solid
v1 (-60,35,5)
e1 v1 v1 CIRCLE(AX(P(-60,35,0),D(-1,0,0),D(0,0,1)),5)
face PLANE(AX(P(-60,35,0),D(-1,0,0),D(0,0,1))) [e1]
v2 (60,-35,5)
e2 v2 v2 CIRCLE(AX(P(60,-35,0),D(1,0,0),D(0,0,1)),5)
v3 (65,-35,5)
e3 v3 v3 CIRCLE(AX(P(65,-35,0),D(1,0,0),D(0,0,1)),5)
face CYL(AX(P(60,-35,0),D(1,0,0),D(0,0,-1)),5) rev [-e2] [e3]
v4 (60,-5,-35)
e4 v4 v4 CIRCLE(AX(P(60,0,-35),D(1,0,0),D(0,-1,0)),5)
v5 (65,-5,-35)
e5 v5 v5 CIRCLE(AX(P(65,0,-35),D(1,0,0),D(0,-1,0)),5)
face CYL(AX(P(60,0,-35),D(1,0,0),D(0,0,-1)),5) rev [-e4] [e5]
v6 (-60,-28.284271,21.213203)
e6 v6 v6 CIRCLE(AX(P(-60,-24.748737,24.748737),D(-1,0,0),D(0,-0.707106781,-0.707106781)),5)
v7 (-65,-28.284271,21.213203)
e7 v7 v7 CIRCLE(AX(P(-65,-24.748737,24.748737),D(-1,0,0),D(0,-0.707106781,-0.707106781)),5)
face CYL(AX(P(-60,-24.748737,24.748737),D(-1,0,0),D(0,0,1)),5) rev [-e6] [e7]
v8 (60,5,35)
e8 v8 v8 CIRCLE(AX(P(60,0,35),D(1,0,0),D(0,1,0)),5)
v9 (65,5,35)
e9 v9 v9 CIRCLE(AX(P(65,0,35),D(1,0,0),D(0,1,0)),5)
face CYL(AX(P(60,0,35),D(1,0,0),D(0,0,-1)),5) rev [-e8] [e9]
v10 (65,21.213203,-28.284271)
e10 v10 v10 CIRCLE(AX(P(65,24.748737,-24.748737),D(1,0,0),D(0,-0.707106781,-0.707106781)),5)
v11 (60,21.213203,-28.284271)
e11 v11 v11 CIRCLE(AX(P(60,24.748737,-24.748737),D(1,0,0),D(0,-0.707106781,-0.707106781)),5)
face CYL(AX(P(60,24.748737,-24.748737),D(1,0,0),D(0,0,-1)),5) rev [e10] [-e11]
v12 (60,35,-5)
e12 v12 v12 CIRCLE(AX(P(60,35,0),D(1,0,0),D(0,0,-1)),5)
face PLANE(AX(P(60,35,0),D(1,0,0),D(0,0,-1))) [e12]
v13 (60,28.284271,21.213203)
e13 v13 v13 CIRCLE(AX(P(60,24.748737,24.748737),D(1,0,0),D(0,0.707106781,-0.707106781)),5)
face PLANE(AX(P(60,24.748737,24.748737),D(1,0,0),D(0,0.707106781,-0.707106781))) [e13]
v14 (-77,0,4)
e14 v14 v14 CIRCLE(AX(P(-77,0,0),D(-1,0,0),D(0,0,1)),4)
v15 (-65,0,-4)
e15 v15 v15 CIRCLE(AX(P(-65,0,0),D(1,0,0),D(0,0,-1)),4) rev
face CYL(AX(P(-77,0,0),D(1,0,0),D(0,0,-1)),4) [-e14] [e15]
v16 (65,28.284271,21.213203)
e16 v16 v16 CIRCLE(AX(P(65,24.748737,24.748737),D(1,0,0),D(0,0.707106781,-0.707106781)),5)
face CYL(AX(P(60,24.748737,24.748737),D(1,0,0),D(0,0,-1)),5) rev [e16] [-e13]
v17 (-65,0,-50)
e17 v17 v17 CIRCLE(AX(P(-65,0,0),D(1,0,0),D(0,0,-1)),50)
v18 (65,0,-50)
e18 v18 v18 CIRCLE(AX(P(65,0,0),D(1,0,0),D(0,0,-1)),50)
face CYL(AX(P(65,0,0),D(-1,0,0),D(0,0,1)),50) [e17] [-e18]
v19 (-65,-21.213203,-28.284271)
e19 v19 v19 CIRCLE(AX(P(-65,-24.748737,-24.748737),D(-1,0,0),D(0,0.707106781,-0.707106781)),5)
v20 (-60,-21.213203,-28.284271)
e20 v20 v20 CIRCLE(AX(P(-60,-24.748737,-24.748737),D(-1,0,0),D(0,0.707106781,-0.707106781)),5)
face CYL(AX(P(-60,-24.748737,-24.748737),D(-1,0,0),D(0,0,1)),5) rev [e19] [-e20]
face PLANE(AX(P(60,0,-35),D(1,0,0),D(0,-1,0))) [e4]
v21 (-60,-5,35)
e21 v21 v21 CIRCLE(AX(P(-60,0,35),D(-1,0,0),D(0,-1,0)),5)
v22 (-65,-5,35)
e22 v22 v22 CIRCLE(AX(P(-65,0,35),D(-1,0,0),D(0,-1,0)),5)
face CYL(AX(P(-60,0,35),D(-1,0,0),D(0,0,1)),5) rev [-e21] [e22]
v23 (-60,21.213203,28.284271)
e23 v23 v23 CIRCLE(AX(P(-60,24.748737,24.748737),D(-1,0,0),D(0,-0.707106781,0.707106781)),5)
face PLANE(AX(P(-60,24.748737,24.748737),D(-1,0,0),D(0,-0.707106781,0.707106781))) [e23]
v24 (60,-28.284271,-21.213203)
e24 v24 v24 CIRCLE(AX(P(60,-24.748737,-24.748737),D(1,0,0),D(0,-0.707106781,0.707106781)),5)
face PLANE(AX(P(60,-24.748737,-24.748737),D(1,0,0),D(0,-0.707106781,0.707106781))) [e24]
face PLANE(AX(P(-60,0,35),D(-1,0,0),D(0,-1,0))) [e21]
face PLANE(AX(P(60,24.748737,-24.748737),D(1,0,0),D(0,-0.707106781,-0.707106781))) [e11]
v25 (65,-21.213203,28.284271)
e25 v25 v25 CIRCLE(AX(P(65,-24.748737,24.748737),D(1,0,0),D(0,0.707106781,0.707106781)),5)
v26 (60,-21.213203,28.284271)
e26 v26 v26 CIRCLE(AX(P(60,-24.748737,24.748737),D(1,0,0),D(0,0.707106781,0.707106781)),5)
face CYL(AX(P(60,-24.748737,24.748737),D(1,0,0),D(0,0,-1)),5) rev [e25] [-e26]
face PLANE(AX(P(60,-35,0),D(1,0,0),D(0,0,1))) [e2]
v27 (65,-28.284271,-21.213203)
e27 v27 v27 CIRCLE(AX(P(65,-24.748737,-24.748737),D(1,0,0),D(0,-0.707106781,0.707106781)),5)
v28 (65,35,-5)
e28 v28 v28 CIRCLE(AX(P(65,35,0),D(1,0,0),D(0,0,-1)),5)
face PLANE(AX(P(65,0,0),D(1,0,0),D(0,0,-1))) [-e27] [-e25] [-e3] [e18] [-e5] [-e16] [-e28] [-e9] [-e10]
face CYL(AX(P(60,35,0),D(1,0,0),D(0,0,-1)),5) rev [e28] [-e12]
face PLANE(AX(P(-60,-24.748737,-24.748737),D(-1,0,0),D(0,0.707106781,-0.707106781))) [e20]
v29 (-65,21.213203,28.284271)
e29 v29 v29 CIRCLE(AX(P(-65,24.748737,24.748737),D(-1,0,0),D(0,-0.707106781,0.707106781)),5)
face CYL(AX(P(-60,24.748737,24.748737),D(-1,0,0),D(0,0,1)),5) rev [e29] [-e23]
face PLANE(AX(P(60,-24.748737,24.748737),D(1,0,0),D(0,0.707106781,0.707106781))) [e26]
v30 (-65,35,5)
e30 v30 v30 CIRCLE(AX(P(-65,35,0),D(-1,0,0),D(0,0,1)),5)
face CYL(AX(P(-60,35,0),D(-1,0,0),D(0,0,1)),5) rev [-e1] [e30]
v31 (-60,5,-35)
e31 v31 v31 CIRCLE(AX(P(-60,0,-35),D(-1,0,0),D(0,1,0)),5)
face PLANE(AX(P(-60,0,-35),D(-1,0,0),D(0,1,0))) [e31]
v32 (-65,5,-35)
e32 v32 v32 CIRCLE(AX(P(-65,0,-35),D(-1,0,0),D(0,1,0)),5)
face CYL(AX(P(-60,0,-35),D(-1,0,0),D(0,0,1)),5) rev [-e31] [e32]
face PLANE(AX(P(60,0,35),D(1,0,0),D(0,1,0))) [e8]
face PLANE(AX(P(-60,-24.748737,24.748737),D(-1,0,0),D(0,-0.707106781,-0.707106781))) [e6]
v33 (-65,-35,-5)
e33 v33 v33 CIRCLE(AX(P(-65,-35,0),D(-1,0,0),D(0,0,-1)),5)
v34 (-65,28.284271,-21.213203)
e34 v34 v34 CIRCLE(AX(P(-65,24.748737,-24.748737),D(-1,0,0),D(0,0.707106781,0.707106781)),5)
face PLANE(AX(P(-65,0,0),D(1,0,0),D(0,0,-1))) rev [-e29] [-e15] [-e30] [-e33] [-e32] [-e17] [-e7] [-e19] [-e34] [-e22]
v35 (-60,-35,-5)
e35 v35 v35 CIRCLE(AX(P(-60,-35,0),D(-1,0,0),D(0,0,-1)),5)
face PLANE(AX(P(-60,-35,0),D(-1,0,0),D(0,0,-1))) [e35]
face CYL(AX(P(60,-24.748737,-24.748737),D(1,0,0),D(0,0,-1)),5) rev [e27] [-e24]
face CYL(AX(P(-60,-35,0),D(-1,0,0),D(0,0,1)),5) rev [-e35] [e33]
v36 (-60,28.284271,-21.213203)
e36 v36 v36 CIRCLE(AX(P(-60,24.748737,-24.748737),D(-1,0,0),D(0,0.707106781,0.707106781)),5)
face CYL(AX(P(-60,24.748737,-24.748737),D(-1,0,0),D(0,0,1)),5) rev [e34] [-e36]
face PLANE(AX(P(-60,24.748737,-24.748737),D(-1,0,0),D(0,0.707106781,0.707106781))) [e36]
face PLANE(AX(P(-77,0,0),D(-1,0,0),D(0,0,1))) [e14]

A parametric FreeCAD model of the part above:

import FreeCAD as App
import Part
import Sketcher

V = App.Vector
Q = App.Units.Quantity

doc = App.newDocument("Part")
params = doc.addObject("Spreadsheet::Sheet", "Params")
for row, (alias, value) in enumerate([
    ("sketch1_diameter", "100 mm"),
    ("pad1_length", "130 mm"),
    ("sketch2_diameter", "8 mm"),
    ("pad2_length", "12 mm"),
    ("sketch3_diameter", "10 mm"),
    ("pocket1_length", "5 mm"),
    ("sketch4_diameter", "10 mm"),
    ("pocket2_length", "5 mm"),
], start=1):
    params.set(f"A{row}", alias)
    params.set(f"B{row}", "=" + value)
    params.setAlias(f"B{row}", alias)

body = doc.addObject("PartDesign::Body", "Body")

sketch1 = body.newObject("Sketcher::SketchObject", "Sketch")
sketch1.AttachmentSupport = (doc.getObject("YZ_Plane"), [""])
sketch1.MapMode = "FlatFace"
sketch1.addGeometry(Part.Circle(V(0, 0, 0), V(0, 0, 1), 50), False)
sketch1.addConstraint([
    Sketcher.Constraint("Coincident", 0, 3, -1, 1),
    Sketcher.Constraint("Diameter", 0, Q("100 mm")),
])
sketch1.setExpression("Constraints[1]", "Params.sketch1_diameter")
pad1 = body.newObject("PartDesign::Pad", "Pad")
pad1.Profile = sketch1
pad1.setExpression("Length", "Params.pad1_length")
pad1.Midplane = True

sketch2 = body.newObject("Sketcher::SketchObject", "Sketch001")
sketch2.AttachmentSupport = (doc.getObject("YZ_Plane"), [""])
sketch2.MapMode = "FlatFace"
sketch2.AttachmentOffset = App.Placement(V(0, 0, -65), App.Rotation())
sketch2.addGeometry(Part.Circle(V(0, 0, 0), V(0, 0, 1), 4), False)
sketch2.addConstraint([
    Sketcher.Constraint("Coincident", 0, 3, -1, 1),
    Sketcher.Constraint("Diameter", 0, Q("8 mm")),
])
sketch2.setExpression("Constraints[1]", "Params.sketch2_diameter")
pad2 = body.newObject("PartDesign::Pad", "Pad001")
pad2.Profile = sketch2
pad2.setExpression("Length", "Params.pad2_length")
pad2.Reversed = True

sketch3 = body.newObject("Sketcher::SketchObject", "Sketch002")
sketch3.AttachmentSupport = (doc.getObject("YZ_Plane"), [""])
sketch3.MapMode = "FlatFace"
sketch3.AttachmentOffset = App.Placement(V(0, 0, -65), App.Rotation())
sketch3.addGeometry(Part.Circle(V(35, 0, 0), V(0, 0, 1), 5), False)
sketch3.addConstraint([
    Sketcher.Constraint("PointOnObject", 0, 3, -1),
    Sketcher.Constraint("Diameter", 0, Q("10 mm")),
    Sketcher.Constraint("DistanceX", -1, 1, 0, 3, Q("35 mm")),
])
sketch3.setExpression("Constraints[1]", "Params.sketch3_diameter")
pocket1 = body.newObject("PartDesign::Pocket", "Pocket")
pocket1.Profile = sketch3
pocket1.setExpression("Length", "Params.pocket1_length")
pocket1.Reversed = True
doc.recompute()

polarpattern = body.newObject("PartDesign::PolarPattern", "PolarPattern")
polarpattern.Originals = [pocket1]
polarpattern.Axis = (doc.getObject("X_Axis"), [""])
polarpattern.Angle = 360
polarpattern.Occurrences = 8
body.Tip = polarpattern

sketch4 = body.newObject("Sketcher::SketchObject", "Sketch003")
sketch4.AttachmentSupport = (doc.getObject("YZ_Plane"), [""])
sketch4.MapMode = "FlatFace"
sketch4.AttachmentOffset = App.Placement(V(0, 0, 65), App.Rotation())
sketch4.addGeometry(Part.Circle(V(35, 0, 0), V(0, 0, 1), 5), False)
sketch4.addConstraint([
    Sketcher.Constraint("PointOnObject", 0, 3, -1),
    Sketcher.Constraint("Diameter", 0, Q("10 mm")),
    Sketcher.Constraint("DistanceX", -1, 1, 0, 3, Q("35 mm")),
])
sketch4.setExpression("Constraints[1]", "Params.sketch4_diameter")
pocket2 = body.newObject("PartDesign::Pocket", "Pocket001")
pocket2.Profile = sketch4
pocket2.setExpression("Length", "Params.pocket2_length")
doc.recompute()

polarpattern2 = body.newObject("PartDesign::PolarPattern", "PolarPattern001")
polarpattern2.Originals = [pocket2]
polarpattern2.Axis = (doc.getObject("X_Axis"), [""])
polarpattern2.Angle = 360
polarpattern2.Occurrences = 8
body.Tip = polarpattern2

doc.recompute()
